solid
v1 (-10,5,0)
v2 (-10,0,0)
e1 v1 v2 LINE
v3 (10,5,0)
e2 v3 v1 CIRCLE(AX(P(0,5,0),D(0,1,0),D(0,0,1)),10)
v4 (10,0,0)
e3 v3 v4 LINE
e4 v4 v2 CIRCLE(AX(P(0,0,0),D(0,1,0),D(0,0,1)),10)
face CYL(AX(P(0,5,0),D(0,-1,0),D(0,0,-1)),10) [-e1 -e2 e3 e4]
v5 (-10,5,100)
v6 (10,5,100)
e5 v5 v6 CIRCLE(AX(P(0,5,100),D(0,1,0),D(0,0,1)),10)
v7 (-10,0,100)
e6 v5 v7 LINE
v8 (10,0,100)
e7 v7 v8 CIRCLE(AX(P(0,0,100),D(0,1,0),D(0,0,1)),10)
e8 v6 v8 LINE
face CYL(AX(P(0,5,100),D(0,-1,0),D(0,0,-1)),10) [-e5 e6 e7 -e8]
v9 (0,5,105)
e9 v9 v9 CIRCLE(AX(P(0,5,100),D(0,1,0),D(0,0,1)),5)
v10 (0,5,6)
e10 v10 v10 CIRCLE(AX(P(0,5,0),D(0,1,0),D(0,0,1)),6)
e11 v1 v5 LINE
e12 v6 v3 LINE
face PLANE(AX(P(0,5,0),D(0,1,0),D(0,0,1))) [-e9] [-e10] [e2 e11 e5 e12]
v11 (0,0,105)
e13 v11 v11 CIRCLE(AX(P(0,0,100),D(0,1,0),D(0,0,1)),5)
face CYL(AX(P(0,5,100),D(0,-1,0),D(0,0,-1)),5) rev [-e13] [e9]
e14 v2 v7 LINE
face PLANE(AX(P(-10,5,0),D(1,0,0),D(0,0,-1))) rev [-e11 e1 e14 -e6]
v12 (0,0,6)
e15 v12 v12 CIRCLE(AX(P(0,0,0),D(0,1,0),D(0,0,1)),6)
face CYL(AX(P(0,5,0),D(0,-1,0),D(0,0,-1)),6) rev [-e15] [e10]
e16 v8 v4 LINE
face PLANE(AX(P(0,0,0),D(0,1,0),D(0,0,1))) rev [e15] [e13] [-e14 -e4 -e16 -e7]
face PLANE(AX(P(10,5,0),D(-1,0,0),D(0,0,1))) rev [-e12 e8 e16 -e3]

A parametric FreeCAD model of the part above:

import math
import FreeCAD as App
import Part
import Sketcher

V = App.Vector
Q = App.Units.Quantity

doc = App.newDocument("Part")
body = doc.addObject("PartDesign::Body", "Body")

sketch1 = doc.addObject("Sketcher::SketchObject", "Sketch")
body.addObject(sketch1)
sketch1.AttachmentSupport = (doc.XZ_Plane, [""])
sketch1.MapMode = "FlatFace"
sketch1.addGeometry([
    Part.LineSegment(V(10, 100, 0), V(10, 0, 0)),
    Part.ArcOfCircle(Part.Circle(V(0, 0, 0), V(0, 0, 1), 10), math.radians(180), math.radians(360)),
    Part.LineSegment(V(-10, 0, 0), V(-10, 100, 0)),
    Part.ArcOfCircle(Part.Circle(V(0, 100, 0), V(0, 0, 1), 10), math.radians(0), math.radians(180)),
    Part.Circle(V(0, 100, 0), V(0, 0, 1), 5),
    Part.Circle(V(0, 0, 0), V(0, 0, 1), 6),
], False)
sketch1.addConstraint([
    Sketcher.Constraint("Tangent", 0, 2, 1, 2),
    Sketcher.Constraint("Tangent", 1, 1, 2, 1),
    Sketcher.Constraint("Tangent", 2, 2, 3, 2),
    Sketcher.Constraint("Tangent", 3, 1, 0, 1),
    Sketcher.Constraint("Vertical", 0),
    Sketcher.Constraint("Vertical", 2),
    Sketcher.Constraint("Coincident", 1, 3, -1, 1),
    Sketcher.Constraint("Coincident", 5, 3, -1, 1),
    Sketcher.Constraint("Coincident", 4, 3, 3, 3),
    Sketcher.Constraint("Diameter", 4, Q("10 mm")),
    Sketcher.Constraint("Diameter", 5, Q("12 mm")),
    Sketcher.Constraint("Radius", 1, Q("10 mm")),
    Sketcher.Constraint("DistanceY", 0, 2, 0, 1, Q("100 mm")),
])
pad1 = doc.addObject("PartDesign::Pad", "Pad")
body.addObject(pad1)
pad1.Profile = sketch1
pad1.Length = 5
pad1.Reversed = True

doc.recompute()
